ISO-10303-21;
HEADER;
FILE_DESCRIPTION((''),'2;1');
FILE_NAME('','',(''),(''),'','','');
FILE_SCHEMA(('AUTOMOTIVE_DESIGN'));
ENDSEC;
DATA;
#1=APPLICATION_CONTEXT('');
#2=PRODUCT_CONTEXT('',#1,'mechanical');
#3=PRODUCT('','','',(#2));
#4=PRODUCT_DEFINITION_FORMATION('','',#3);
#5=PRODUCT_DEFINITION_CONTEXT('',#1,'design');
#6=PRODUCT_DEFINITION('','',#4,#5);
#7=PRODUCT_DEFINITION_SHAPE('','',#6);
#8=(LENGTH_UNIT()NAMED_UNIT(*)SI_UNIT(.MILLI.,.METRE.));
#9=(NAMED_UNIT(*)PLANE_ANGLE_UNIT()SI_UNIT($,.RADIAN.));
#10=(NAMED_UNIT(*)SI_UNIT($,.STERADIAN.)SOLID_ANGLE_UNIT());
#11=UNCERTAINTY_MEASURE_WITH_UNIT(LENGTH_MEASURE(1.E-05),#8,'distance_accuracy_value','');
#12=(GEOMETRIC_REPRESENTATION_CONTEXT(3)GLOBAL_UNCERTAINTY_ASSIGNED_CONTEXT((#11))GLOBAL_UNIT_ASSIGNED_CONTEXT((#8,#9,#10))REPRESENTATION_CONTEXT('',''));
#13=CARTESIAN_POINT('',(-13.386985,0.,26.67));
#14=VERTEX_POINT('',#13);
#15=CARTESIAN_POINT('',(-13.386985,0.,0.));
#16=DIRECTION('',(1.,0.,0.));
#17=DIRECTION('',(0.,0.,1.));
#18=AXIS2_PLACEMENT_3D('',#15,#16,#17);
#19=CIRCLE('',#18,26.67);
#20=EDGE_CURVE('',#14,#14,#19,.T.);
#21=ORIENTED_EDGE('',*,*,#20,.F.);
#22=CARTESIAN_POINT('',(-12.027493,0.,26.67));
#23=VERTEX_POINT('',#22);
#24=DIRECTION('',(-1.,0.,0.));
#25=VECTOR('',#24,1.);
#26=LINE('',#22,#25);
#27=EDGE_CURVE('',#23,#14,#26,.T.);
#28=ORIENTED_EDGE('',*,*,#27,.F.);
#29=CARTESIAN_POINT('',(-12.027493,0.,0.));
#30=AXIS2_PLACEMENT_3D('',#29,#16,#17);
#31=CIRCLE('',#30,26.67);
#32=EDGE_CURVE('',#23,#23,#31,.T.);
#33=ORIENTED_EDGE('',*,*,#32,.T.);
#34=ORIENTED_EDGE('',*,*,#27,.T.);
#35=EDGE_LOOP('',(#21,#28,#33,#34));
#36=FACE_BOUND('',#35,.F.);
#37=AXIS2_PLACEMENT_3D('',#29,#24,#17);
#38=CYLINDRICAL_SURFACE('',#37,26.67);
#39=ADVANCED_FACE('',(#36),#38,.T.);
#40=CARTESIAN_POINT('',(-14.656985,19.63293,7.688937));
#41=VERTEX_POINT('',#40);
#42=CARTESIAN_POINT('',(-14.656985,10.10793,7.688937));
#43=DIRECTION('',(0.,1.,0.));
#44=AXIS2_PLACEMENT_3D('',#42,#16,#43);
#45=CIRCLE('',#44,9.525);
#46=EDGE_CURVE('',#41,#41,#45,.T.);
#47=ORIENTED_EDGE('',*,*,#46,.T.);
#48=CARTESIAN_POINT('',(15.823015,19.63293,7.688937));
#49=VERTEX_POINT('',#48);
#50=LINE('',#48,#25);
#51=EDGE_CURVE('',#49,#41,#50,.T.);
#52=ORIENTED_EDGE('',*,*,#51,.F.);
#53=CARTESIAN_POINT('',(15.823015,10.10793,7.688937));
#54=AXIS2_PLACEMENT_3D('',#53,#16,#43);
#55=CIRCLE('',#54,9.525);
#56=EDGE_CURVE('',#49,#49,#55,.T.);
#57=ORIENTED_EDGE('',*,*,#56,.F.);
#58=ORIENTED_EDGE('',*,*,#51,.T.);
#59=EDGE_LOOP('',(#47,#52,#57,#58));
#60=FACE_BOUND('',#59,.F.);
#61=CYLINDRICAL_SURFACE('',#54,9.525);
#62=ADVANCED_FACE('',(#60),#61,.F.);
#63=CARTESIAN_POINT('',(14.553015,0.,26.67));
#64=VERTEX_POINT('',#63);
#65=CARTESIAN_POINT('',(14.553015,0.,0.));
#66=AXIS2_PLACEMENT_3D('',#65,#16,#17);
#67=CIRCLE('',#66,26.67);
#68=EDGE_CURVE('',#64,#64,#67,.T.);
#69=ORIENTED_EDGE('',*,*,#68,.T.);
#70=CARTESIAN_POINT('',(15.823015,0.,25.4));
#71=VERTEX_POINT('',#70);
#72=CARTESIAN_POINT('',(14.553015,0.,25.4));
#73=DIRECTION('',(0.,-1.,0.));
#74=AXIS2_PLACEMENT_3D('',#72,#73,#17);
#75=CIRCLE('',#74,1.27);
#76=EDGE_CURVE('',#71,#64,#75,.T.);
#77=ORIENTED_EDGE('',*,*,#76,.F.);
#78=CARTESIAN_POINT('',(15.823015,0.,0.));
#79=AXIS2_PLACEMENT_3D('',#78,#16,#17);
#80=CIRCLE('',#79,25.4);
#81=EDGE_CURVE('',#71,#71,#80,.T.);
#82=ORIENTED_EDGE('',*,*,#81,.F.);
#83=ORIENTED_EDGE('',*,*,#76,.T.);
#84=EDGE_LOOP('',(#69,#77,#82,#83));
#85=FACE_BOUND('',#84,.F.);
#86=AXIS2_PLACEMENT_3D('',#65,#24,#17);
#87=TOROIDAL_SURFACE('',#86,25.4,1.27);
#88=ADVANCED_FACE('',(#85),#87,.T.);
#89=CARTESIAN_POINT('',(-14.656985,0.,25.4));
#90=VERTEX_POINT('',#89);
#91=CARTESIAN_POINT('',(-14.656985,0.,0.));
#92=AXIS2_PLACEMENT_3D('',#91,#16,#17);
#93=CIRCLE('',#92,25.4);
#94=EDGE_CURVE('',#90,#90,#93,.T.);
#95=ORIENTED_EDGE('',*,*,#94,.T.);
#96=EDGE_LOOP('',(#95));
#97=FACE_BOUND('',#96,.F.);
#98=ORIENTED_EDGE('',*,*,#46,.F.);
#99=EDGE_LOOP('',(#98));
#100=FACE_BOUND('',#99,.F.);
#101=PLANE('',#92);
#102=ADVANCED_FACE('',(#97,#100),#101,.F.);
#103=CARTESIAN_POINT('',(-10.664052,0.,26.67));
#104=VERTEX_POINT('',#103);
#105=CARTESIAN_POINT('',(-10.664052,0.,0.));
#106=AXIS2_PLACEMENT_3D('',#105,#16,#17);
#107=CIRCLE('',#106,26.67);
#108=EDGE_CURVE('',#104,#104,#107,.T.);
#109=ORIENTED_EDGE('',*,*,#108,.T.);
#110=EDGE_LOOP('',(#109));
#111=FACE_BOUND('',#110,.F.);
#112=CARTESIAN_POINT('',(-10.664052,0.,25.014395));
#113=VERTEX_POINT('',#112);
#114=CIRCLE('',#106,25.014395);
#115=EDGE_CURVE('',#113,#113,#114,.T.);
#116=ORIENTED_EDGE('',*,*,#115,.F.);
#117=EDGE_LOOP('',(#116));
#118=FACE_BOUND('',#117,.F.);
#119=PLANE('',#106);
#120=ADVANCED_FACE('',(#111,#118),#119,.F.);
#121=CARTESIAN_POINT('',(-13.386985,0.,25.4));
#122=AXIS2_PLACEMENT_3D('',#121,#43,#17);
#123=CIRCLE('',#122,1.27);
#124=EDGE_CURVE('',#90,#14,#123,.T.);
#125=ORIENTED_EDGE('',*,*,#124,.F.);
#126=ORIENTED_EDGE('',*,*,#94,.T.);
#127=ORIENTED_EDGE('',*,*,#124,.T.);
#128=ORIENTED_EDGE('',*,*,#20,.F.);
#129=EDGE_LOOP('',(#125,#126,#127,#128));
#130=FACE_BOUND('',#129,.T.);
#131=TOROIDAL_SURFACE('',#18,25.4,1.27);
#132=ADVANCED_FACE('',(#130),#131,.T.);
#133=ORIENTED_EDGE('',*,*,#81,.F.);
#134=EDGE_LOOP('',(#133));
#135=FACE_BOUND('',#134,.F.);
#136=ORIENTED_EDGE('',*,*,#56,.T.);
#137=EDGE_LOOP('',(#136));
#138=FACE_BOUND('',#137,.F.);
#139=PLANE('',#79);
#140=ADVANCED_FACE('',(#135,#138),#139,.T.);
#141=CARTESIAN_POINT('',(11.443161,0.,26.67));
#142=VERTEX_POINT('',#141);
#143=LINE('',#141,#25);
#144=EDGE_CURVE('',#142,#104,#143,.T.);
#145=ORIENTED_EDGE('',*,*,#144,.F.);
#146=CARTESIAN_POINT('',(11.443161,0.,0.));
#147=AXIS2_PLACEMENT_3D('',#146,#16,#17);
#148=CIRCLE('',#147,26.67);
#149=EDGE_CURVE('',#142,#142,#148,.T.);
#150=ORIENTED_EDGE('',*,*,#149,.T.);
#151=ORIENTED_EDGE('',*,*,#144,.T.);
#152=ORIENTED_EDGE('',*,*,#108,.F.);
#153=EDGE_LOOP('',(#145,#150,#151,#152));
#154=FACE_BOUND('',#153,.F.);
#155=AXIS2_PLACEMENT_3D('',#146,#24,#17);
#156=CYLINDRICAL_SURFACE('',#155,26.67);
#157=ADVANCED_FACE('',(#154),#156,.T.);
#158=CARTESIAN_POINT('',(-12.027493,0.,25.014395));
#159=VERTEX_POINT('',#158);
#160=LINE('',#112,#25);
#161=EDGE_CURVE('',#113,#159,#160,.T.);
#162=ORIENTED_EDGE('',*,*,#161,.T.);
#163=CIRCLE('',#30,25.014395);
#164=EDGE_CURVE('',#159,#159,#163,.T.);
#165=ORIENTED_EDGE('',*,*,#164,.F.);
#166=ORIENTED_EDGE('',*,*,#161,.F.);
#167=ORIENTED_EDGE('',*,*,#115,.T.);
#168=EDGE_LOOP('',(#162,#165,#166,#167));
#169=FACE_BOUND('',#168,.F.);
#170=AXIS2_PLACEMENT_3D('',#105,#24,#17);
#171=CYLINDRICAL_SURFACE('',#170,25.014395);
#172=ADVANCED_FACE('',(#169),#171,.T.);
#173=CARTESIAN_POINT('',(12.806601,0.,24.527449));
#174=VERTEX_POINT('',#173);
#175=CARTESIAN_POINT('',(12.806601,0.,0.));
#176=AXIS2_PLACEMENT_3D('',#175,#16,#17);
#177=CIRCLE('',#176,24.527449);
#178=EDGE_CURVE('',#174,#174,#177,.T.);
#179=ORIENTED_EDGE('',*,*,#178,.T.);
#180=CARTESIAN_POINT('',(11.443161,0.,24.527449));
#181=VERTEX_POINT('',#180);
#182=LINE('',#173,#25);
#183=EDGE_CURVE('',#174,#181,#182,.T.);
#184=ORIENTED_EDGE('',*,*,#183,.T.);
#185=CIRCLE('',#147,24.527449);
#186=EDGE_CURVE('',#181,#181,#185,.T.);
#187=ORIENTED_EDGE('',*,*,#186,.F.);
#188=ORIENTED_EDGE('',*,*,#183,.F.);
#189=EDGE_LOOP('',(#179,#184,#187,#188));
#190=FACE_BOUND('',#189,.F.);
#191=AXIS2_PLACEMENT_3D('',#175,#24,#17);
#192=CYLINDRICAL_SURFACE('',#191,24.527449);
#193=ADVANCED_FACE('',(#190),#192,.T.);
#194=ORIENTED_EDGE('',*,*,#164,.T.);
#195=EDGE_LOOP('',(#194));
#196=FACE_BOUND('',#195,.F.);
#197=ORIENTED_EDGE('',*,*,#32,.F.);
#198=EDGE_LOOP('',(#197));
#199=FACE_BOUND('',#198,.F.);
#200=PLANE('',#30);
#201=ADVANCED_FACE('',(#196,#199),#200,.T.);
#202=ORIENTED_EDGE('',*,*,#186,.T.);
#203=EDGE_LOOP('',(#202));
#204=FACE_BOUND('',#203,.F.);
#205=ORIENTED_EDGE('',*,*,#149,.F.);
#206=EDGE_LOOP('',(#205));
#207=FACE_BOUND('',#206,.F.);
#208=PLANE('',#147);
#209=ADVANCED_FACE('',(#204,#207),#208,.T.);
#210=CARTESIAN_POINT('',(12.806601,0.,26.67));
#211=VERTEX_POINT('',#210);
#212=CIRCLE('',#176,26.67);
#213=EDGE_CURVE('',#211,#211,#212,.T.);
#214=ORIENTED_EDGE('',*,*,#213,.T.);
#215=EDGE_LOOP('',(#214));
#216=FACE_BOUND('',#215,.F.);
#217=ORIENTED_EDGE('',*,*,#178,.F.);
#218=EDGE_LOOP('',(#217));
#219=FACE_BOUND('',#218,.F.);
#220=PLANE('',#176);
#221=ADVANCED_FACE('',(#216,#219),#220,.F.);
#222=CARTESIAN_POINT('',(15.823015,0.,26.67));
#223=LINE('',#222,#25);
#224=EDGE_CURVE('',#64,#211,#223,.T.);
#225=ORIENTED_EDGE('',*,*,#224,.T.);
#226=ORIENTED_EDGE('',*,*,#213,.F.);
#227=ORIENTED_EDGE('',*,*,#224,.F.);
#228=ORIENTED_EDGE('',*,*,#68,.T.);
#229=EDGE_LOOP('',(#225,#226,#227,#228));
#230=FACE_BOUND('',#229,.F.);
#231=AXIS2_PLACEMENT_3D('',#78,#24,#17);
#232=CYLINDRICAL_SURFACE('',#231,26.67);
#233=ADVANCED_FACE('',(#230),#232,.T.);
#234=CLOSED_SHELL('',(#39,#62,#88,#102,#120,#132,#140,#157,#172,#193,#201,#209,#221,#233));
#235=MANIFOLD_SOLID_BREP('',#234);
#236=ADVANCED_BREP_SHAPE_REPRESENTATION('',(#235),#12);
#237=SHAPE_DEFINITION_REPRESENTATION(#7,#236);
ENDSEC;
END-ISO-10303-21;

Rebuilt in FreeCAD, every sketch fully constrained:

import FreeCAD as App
import Part
import Sketcher
Q = App.Units.Quantity


def edges_at(feature, points):
    """Names of the edges that pass closest to the given points."""
    edges = feature.Shape.Edges
    near = lambda p: min(range(len(edges)), key=lambda i: edges[i].distToShape(Part.Vertex(*p))[0])
    return sorted({f"Edge{near(p) + 1}" for p in points})

doc = App.newDocument("Part")
body = doc.addObject("PartDesign::Body", "Body")

# Sketch on XZ plane
sketch1 = body.newObject("Sketcher::SketchObject", "Sketch")
sketch1.AttachmentSupport = (doc.getObject("XZ_Plane"), [""])
sketch1.MapMode = "FlatFace"
sketch1.addGeometry([
    Part.LineSegment(App.Vector(-14.656985, 26.67, 0), App.Vector(-14.656985, 0, 0)),  # 0
    Part.LineSegment(App.Vector(-14.656985, 0, 0), App.Vector(15.823015, 0, 0)),  # 1
    Part.LineSegment(App.Vector(15.823015, 0, 0), App.Vector(15.823015, 26.67, 0)),  # 2
    Part.LineSegment(App.Vector(15.823015, 26.67, 0), App.Vector(12.806601, 26.67, 0)),  # 3
    Part.LineSegment(App.Vector(12.806601, 26.67, 0), App.Vector(12.806601, 24.527449, 0)),  # 4
    Part.LineSegment(App.Vector(12.806601, 24.527449, 0), App.Vector(11.443161, 24.527449, 0)),  # 5
    Part.LineSegment(App.Vector(11.443161, 24.527449, 0), App.Vector(11.443161, 26.67, 0)),  # 6
    Part.LineSegment(App.Vector(11.443161, 26.67, 0), App.Vector(-10.664052, 26.67, 0)),  # 7
    Part.LineSegment(App.Vector(-10.664052, 26.67, 0), App.Vector(-10.664052, 25.014395, 0)),  # 8
    Part.LineSegment(App.Vector(-10.664052, 25.014395, 0), App.Vector(-12.027493, 25.014395, 0)),  # 9
    Part.LineSegment(App.Vector(-12.027493, 25.014395, 0), App.Vector(-12.027493, 26.67, 0)),  # 10
    Part.LineSegment(App.Vector(-12.027493, 26.67, 0), App.Vector(-14.656985, 26.67, 0)),  # 11
], False)
sketch1.addConstraint([
    Sketcher.Constraint("Coincident", 0, 2, 1, 1),
    Sketcher.Constraint("Coincident", 1, 2, 2, 1),
    Sketcher.Constraint("Coincident", 2, 2, 3, 1),
    Sketcher.Constraint("Coincident", 3, 2, 4, 1),
    Sketcher.Constraint("Coincident", 4, 2, 5, 1),
    Sketcher.Constraint("Coincident", 5, 2, 6, 1),
    Sketcher.Constraint("Coincident", 6, 2, 7, 1),
    Sketcher.Constraint("Coincident", 7, 2, 8, 1),
    Sketcher.Constraint("Coincident", 8, 2, 9, 1),
    Sketcher.Constraint("Coincident", 9, 2, 10, 1),
    Sketcher.Constraint("Coincident", 10, 2, 11, 1),
    Sketcher.Constraint("Coincident", 11, 2, 0, 1),
    Sketcher.Constraint("Vertical", 0),
    Sketcher.Constraint("Horizontal", 1),
    Sketcher.Constraint("Vertical", 2),
    Sketcher.Constraint("Horizontal", 3),
    Sketcher.Constraint("Vertical", 4),
    Sketcher.Constraint("Horizontal", 5),
    Sketcher.Constraint("Vertical", 6),
    Sketcher.Constraint("Horizontal", 7),
    Sketcher.Constraint("Vertical", 8),
    Sketcher.Constraint("Horizontal", 9),
    Sketcher.Constraint("Vertical", 10),
    Sketcher.Constraint("Horizontal", 11),
    Sketcher.Constraint("PointOnObject", 0, 2, -1),
    Sketcher.Constraint("Horizontal", 3, 2, 6, 2),
    Sketcher.Constraint("Horizontal", 7, 2, 10, 2),
    Sketcher.Constraint("Equal", 5, 9),
    Sketcher.Constraint("DistanceX", 1, 1, 1, 2, Q("1.2 in")),
    Sketcher.Constraint("DistanceY", 0, 2, 0, 1, Q("1.05 in")),
    Sketcher.Constraint("DistanceX", 5, 2, 5, 1, Q("1.36344 mm")),
    Sketcher.Constraint("DistanceY", 4, 2, 4, 1, Q("2.142551 mm")),
    Sketcher.Constraint("DistanceX", -1, 1, 3, 2, Q("12.806601 mm")),
    Sketcher.Constraint("DistanceX", 3, 2, 3, 1, Q("3.016414 mm")),
    Sketcher.Constraint("DistanceX", 7, 2, 7, 1, Q("22.107213 mm")),
    Sketcher.Constraint("DistanceY", 8, 2, 8, 1, Q("1.655605 mm")),
])
revolution = body.newObject("PartDesign::Revolution", "Revolution")
revolution.Profile = sketch1
revolution.ReferenceAxis = (sketch1, ["H_Axis"])
revolution.Angle = 360
doc.recompute()

fillet = body.newObject("PartDesign::Fillet", "Fillet")
fillet.Base = (revolution, edges_at(revolution, [(-14.657, 0, -26.67), (15.823, 0, -26.67)]))
fillet.Radius = Q("0.05 in")

# Sketch on YZ plane
sketch2 = body.newObject("Sketcher::SketchObject", "Sketch001")
sketch2.AttachmentSupport = (doc.getObject("YZ_Plane"), [""])
sketch2.MapMode = "FlatFace"
sketch2.AttachmentOffset = App.Placement(App.Vector(0, 0, 15.823015), App.Rotation())
sketch2.addGeometry(Part.Circle(App.Vector(10.10793, 7.688937, 0), App.Vector(0, 0, 1), 9.525), False)
sketch2.addConstraint([
    Sketcher.Constraint("Diameter", 0, Q("0.75 in")),
    Sketcher.Constraint("DistanceX", -1, 1, 0, 3, Q("10.10793 mm")),
    Sketcher.Constraint("DistanceY", -1, 1, 0, 3, Q("7.688937 mm")),
])
pocket1 = body.newObject("PartDesign::Pocket", "Pocket")
pocket1.Profile = sketch2
pocket1.Type = "ThroughAll"

doc.recompute()
